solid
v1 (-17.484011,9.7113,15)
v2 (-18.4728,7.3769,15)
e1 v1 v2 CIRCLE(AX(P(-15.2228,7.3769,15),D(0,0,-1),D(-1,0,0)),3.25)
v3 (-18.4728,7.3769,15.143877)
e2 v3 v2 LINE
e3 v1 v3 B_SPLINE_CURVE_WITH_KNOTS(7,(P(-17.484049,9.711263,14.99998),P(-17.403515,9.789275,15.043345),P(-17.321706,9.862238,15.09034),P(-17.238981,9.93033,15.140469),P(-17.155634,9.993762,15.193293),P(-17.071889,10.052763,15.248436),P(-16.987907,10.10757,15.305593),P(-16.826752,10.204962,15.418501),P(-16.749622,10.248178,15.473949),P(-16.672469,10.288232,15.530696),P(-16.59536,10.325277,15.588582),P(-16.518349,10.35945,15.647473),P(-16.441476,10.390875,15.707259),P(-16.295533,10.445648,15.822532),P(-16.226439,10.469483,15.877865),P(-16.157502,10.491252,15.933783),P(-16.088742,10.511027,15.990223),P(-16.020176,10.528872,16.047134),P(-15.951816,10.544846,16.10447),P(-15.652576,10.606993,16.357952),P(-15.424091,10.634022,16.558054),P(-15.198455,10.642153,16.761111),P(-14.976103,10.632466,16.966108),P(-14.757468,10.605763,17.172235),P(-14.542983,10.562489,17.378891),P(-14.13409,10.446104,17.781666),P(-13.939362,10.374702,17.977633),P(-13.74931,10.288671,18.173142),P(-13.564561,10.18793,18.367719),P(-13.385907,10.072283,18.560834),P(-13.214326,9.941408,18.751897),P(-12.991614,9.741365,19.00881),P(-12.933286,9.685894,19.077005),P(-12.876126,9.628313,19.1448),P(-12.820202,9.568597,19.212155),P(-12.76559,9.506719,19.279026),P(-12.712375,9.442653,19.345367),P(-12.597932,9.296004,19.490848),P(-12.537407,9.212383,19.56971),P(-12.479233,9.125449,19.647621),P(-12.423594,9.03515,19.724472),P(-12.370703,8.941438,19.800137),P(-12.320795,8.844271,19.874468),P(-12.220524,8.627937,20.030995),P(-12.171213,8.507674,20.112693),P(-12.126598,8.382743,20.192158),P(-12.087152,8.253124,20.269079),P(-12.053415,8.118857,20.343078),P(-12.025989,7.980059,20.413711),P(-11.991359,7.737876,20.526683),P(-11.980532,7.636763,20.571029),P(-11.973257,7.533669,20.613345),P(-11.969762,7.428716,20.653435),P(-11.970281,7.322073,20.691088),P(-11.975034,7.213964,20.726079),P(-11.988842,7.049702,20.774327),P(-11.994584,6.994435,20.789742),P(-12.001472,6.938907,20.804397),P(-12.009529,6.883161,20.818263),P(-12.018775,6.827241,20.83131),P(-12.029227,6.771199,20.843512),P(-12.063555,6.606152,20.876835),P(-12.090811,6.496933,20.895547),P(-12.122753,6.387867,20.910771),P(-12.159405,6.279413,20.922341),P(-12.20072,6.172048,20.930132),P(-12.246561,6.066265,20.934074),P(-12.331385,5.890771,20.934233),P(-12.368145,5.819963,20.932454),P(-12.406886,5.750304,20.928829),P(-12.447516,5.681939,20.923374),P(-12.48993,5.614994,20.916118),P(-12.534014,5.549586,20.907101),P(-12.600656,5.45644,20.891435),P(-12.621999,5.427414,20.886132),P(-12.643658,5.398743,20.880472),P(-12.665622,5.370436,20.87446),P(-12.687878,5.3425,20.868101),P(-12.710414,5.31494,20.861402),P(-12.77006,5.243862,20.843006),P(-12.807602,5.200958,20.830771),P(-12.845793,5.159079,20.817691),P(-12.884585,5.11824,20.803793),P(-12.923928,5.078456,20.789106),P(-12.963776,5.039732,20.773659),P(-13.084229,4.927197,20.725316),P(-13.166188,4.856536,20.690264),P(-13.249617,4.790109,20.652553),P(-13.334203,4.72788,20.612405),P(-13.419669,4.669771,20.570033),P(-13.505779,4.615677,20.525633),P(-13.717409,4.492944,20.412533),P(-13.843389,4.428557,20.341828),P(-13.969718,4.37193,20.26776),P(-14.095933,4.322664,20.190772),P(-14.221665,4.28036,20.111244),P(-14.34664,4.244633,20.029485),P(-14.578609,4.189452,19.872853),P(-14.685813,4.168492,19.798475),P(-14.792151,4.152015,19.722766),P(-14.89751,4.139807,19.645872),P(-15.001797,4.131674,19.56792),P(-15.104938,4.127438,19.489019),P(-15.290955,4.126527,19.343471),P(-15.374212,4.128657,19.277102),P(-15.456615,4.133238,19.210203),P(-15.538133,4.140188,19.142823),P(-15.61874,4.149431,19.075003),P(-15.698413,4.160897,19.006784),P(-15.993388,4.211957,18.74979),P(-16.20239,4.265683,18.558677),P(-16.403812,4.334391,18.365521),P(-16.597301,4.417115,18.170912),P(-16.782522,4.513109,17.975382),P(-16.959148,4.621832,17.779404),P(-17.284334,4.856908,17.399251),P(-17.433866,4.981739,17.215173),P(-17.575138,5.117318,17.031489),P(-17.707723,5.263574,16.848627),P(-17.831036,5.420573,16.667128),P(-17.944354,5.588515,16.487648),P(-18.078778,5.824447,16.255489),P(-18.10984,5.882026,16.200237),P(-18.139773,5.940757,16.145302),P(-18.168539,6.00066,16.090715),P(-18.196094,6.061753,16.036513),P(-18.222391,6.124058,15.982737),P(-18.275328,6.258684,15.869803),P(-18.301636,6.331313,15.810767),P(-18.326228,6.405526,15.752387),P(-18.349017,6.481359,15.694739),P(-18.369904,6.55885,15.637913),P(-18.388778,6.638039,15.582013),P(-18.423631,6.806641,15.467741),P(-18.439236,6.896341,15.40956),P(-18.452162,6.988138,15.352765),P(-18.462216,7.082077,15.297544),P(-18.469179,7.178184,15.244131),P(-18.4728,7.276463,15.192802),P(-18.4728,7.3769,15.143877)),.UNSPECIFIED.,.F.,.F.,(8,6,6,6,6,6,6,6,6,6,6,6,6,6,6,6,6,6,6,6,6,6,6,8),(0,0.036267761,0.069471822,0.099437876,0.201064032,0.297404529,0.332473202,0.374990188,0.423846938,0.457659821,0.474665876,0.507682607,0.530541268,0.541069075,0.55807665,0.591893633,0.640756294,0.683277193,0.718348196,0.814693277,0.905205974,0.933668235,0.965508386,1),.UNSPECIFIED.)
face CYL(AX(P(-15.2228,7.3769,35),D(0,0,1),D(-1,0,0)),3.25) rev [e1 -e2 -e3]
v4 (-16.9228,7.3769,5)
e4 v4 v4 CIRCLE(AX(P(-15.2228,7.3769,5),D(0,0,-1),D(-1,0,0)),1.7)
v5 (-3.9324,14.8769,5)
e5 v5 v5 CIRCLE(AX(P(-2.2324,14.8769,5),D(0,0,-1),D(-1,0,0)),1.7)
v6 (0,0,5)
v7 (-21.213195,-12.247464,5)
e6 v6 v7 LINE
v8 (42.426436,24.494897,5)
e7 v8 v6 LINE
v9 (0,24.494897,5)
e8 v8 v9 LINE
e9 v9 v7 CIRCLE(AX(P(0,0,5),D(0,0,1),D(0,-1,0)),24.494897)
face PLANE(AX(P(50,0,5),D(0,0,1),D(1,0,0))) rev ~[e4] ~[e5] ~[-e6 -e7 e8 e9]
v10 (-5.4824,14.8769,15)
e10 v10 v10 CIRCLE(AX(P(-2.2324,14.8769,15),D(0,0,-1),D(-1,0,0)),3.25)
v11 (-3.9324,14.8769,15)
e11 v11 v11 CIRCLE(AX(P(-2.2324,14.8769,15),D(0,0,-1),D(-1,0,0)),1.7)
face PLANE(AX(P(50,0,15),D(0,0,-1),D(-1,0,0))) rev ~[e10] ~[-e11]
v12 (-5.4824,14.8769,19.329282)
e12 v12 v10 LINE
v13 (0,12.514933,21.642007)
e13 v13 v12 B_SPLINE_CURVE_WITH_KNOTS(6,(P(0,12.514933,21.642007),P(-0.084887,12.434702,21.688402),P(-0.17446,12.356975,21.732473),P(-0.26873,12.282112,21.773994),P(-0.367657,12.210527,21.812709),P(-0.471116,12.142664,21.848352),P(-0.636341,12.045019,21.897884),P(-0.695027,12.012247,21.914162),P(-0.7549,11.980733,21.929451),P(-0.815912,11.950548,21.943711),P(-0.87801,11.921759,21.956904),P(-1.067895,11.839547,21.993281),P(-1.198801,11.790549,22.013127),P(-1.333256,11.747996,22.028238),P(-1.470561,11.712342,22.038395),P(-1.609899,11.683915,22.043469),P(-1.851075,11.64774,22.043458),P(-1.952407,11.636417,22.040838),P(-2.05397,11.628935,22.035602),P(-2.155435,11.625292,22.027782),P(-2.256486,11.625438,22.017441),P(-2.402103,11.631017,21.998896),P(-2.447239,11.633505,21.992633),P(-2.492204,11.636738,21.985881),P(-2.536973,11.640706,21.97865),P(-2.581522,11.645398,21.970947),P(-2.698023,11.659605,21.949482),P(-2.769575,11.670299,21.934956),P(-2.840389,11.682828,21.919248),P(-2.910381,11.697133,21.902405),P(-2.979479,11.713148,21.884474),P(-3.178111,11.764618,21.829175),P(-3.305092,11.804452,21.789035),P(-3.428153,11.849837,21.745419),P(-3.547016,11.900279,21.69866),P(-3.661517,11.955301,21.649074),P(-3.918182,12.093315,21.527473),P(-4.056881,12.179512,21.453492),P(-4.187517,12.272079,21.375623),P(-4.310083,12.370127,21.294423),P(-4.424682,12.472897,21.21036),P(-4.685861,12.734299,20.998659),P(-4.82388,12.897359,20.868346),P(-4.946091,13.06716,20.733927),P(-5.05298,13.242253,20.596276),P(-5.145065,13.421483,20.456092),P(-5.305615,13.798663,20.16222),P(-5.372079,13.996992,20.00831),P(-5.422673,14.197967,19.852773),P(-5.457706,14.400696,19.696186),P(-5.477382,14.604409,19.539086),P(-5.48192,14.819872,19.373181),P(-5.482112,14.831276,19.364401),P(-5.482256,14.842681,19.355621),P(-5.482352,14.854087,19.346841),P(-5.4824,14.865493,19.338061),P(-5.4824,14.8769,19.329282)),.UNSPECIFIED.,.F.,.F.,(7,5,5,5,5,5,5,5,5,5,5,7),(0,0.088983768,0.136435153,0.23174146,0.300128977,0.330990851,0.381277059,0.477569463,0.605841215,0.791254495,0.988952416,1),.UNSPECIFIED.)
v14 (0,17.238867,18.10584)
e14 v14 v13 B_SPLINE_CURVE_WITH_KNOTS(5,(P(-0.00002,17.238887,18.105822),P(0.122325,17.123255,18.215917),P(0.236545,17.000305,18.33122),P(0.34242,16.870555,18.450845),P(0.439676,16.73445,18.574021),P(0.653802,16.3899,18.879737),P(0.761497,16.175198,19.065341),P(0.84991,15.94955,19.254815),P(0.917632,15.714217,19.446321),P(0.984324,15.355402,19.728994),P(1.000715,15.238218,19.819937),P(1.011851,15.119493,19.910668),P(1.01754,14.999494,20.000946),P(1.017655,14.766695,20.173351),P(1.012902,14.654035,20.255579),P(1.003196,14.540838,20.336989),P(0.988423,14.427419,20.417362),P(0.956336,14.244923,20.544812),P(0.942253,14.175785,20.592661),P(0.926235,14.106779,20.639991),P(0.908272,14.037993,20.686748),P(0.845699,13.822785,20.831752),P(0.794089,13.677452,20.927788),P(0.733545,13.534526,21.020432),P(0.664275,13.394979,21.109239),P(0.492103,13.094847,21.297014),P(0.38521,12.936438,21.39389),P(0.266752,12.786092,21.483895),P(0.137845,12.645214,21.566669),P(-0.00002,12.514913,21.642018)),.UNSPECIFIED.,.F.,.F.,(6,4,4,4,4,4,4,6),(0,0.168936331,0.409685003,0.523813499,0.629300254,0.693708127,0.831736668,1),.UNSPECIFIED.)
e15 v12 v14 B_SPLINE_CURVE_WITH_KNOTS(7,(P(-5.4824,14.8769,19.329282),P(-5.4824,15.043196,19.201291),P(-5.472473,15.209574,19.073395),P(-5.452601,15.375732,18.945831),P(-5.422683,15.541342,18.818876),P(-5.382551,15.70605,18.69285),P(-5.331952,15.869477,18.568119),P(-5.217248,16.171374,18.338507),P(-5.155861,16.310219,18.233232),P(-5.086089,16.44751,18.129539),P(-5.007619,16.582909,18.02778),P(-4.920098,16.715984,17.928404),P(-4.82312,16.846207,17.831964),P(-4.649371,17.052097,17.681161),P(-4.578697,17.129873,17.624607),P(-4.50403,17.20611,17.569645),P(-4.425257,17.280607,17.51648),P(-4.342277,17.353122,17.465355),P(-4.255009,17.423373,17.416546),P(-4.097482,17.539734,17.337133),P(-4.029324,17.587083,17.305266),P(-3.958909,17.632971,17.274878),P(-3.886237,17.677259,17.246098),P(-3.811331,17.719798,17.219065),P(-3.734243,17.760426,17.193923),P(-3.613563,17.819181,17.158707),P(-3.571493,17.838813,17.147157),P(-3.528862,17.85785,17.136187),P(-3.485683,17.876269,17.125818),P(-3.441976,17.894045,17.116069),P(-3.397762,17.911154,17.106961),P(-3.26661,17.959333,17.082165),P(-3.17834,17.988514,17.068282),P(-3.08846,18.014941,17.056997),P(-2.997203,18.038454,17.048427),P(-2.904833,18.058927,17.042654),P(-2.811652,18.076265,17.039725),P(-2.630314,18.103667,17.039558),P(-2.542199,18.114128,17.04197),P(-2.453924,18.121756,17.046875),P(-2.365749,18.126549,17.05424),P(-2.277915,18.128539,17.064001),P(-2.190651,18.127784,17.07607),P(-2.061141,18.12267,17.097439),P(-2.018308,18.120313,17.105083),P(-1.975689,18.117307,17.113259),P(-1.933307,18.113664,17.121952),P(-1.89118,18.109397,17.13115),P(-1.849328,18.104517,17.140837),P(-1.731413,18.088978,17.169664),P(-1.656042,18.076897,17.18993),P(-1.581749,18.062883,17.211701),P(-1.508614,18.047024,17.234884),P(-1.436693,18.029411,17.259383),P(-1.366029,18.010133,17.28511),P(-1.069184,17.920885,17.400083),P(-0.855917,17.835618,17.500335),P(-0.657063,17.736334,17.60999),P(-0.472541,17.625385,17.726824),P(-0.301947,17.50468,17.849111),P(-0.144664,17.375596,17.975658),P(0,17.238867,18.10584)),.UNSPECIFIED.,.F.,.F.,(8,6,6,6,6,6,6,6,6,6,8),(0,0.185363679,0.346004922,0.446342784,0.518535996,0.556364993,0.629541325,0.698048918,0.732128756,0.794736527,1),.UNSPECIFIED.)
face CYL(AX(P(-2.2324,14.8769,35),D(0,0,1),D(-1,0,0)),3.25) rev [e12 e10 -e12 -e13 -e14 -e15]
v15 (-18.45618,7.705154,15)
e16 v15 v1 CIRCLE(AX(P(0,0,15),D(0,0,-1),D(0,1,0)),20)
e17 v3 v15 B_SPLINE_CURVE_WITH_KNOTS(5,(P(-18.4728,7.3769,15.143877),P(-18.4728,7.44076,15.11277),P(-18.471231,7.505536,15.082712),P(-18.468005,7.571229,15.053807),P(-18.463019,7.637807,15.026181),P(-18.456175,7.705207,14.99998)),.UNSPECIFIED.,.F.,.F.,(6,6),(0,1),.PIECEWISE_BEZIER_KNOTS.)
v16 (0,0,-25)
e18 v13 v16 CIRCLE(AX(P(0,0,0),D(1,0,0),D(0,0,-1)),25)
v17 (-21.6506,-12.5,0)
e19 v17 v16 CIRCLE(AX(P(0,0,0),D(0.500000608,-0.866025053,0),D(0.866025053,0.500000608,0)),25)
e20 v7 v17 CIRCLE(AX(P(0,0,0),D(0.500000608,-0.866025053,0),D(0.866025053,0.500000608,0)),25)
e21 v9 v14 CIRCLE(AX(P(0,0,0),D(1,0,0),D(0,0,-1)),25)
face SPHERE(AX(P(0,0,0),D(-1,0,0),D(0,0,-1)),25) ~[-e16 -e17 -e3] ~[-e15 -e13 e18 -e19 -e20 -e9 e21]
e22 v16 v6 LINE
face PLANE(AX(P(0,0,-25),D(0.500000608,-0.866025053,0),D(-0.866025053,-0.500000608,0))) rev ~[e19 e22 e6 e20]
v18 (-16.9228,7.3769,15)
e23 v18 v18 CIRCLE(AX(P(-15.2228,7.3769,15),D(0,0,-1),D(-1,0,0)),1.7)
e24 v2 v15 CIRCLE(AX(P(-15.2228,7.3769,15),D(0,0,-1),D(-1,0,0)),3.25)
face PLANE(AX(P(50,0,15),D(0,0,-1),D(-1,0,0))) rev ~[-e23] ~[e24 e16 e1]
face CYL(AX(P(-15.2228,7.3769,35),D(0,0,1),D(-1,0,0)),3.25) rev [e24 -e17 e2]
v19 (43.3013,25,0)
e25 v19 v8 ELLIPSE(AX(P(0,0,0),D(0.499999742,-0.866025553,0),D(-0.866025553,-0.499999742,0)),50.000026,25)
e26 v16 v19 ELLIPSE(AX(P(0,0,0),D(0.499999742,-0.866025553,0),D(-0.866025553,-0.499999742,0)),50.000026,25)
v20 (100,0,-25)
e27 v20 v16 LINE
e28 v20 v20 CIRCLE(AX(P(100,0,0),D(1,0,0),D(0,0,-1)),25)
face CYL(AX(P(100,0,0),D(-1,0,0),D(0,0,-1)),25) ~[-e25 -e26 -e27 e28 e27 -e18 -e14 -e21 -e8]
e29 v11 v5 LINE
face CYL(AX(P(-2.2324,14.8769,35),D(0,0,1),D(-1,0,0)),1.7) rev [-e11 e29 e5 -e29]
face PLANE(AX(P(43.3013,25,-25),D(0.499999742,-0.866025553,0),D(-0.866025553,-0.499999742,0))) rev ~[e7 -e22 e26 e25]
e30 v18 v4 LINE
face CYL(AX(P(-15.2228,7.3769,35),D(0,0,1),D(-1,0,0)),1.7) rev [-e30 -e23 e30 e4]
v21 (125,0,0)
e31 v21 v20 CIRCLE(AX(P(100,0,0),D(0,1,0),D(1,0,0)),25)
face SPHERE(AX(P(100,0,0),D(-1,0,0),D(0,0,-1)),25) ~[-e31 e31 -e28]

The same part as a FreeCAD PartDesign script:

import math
import FreeCAD as App
import Part
import Sketcher

V = App.Vector
Q = App.Units.Quantity


def add_polygon(sketch, points):
    """Adds a closed chain of lines whose ends are joined by coincident constraints."""
    first, n = sketch.GeometryCount, len(points)
    for a, b in zip(points, points[1:] + points[:1]):
        sketch.addGeometry(Part.LineSegment(App.Vector(*a, 0), App.Vector(*b, 0)), False)
    for i in range(n):
        sketch.addConstraint(Sketcher.Constraint("Coincident", first + i, 2, first + (i + 1) % n, 1))

doc = App.newDocument("Part")
body = doc.addObject("PartDesign::Body", "Body")

# Sketch on XZ plane
sketch1 = body.newObject("Sketcher::SketchObject", "Sketch")
sketch1.AttachmentSupport = (doc.getObject("XZ_Plane"), [""])
sketch1.MapMode = "FlatFace"
sketch1.addGeometry(Part.LineSegment(V(100, -25, 0), V(0, -25, 0)), False)
sketch1.addGeometry(Part.ArcOfCircle(Part.Circle(V(0, 0, 0), V(0, 0, 1), 25), math.radians(180), math.radians(270)), False)
sketch1.addGeometry(Part.LineSegment(V(-25, 0, 0), V(125, 0, 0)), False)
sketch1.addGeometry(Part.ArcOfCircle(Part.Circle(V(100, 0, 0), V(0, 0, 1), 25), math.radians(-90), math.radians(0)), False)
sketch1.addConstraint(Sketcher.Constraint("Tangent", 0, 2, 1, 2))
sketch1.addConstraint(Sketcher.Constraint("Coincident", 1, 1, 2, 1))
sketch1.addConstraint(Sketcher.Constraint("Coincident", 2, 2, 3, 2))
sketch1.addConstraint(Sketcher.Constraint("Tangent", 3, 1, 0, 1))
sketch1.addConstraint(Sketcher.Constraint("Horizontal", 0))
sketch1.addConstraint(Sketcher.Constraint("Horizontal", 2))
sketch1.addConstraint(Sketcher.Constraint("Coincident", 1, 3, -1, 1))
sketch1.addConstraint(Sketcher.Constraint("Equal", 1, 3))
sketch1.addConstraint(Sketcher.Constraint("PointOnObject", 1, 1, -1))
sketch1.addConstraint(Sketcher.Constraint("Radius", 1, 25.0))
sketch1.addConstraint(Sketcher.Constraint("DistanceX", 0, 2, 0, 1, 100.0))
revolution = body.newObject("PartDesign::Revolution", "Revolution")
revolution.Profile = sketch1
revolution.ReferenceAxis = (sketch1, ["H_Axis"])
revolution.Angle = 360

# Sketch on XY plane
sketch2 = body.newObject("Sketcher::SketchObject", "Sketch001")
sketch2.AttachmentSupport = (doc.getObject("XY_Plane"), [""])
sketch2.MapMode = "FlatFace"
sketch2.AttachmentOffset = App.Placement(V(0, 0, -25), App.Rotation())
add_polygon(sketch2, [(-22, -12), (0, 0), (43, 25), (31, 47), (-12, 22), (-34, 9)])  # lines 0-5
sketch2.addConstraint(Sketcher.Constraint("Coincident", 0, 2, -1, 1))
sketch2.addConstraint(Sketcher.Constraint("Parallel", 0, 1))
sketch2.addConstraint(Sketcher.Constraint("Perpendicular", 1, 2))
sketch2.addConstraint(Sketcher.Constraint("Perpendicular", 2, 3))
sketch2.addConstraint(Sketcher.Constraint("Parallel", 3, 4))
sketch2.addConstraint(Sketcher.Constraint("Perpendicular", 4, 5))
sketch2.addConstraint(Sketcher.Constraint("Equal", 0, 2))
sketch2.addConstraint(Sketcher.Constraint("Equal", 1, 3))
sketch2.addConstraint(Sketcher.Constraint("Angle", 2, Q("120 deg")))
sketch2.addConstraint(Sketcher.Constraint("Distance", 0, 25.0))
sketch2.addConstraint(Sketcher.Constraint("Distance", 1, 50.0))
pocket1 = body.newObject("PartDesign::Pocket", "Pocket")
pocket1.Profile = sketch2
pocket1.Length = 30
pocket1.Reversed = True

# Sketch on XY plane
sketch3 = body.newObject("Sketcher::SketchObject", "Sketch002")
sketch3.AttachmentSupport = (doc.getObject("XY_Plane"), [""])
sketch3.MapMode = "FlatFace"
sketch3.AttachmentOffset = App.Placement(V(0, 0, 35), App.Rotation())
sketch3.addGeometry(Part.Circle(V(-15.2, 7.4, 0), V(0, 0, 1), 1.7), False)
sketch3.addGeometry(Part.Circle(V(-2.2, 14.9, 0), V(0, 0, 1), 1.7), False)
sketch3.addConstraint(Sketcher.Constraint("Equal", 0, 1))
sketch3.addConstraint(Sketcher.Constraint("Diameter", 0, 3.4))
sketch3.addConstraint(Sketcher.Constraint("DistanceY", 0, 3, 1, 3, 7.5))
sketch3.addConstraint(Sketcher.Constraint("DistanceY", -1, 1, 0, 3, 7.377))
sketch3.addConstraint(Sketcher.Constraint("DistanceX", 0, 3, -1, 1, 15.2228))
sketch3.addConstraint(Sketcher.Constraint("DistanceX", 1, 3, -1, 1, 2.2324))
pocket2 = body.newObject("PartDesign::Pocket", "Pocket001")
pocket2.Profile = sketch3
pocket2.Length = 30

# Sketch on XY plane
sketch4 = body.newObject("Sketcher::SketchObject", "Sketch003")
sketch4.AttachmentSupport = (doc.getObject("XY_Plane"), [""])
sketch4.MapMode = "FlatFace"
sketch4.AttachmentOffset = App.Placement(V(0, 0, 35), App.Rotation())
sketch4.addGeometry(Part.Circle(V(-15.2, 7.4, 0), V(0, 0, 1), 3.2), False)
sketch4.addGeometry(Part.Circle(V(-15.2, 7.4, 0), V(0, 0, 1), 1.7), False)
sketch4.addGeometry(Part.Circle(V(-2.2, 14.9, 0), V(0, 0, 1), 3.2), False)
sketch4.addGeometry(Part.Circle(V(-2.2, 14.9, 0), V(0, 0, 1), 1.7), False)
sketch4.addConstraint(Sketcher.Constraint("Coincident", 1, 3, 0, 3))
sketch4.addConstraint(Sketcher.Constraint("Coincident", 3, 3, 2, 3))
sketch4.addConstraint(Sketcher.Constraint("Equal", 0, 2))
sketch4.addConstraint(Sketcher.Constraint("Equal", 1, 3))
sketch4.addConstraint(Sketcher.Constraint("Diameter", 0, 6.5))
sketch4.addConstraint(Sketcher.Constraint("Diameter", 1, 3.4))
sketch4.addConstraint(Sketcher.Constraint("DistanceY", 0, 3, 2, 3, 7.5))
sketch4.addConstraint(Sketcher.Constraint("DistanceY", -1, 1, 0, 3, 7.377))
sketch4.addConstraint(Sketcher.Constraint("DistanceX", 0, 3, -1, 1, 15.2228))
sketch4.addConstraint(Sketcher.Constraint("DistanceX", 2, 3, -1, 1, 2.2324))
pocket3 = body.newObject("PartDesign::Pocket", "Pocket002")
pocket3.Profile = sketch4
pocket3.Length = 20

doc.recompute()
